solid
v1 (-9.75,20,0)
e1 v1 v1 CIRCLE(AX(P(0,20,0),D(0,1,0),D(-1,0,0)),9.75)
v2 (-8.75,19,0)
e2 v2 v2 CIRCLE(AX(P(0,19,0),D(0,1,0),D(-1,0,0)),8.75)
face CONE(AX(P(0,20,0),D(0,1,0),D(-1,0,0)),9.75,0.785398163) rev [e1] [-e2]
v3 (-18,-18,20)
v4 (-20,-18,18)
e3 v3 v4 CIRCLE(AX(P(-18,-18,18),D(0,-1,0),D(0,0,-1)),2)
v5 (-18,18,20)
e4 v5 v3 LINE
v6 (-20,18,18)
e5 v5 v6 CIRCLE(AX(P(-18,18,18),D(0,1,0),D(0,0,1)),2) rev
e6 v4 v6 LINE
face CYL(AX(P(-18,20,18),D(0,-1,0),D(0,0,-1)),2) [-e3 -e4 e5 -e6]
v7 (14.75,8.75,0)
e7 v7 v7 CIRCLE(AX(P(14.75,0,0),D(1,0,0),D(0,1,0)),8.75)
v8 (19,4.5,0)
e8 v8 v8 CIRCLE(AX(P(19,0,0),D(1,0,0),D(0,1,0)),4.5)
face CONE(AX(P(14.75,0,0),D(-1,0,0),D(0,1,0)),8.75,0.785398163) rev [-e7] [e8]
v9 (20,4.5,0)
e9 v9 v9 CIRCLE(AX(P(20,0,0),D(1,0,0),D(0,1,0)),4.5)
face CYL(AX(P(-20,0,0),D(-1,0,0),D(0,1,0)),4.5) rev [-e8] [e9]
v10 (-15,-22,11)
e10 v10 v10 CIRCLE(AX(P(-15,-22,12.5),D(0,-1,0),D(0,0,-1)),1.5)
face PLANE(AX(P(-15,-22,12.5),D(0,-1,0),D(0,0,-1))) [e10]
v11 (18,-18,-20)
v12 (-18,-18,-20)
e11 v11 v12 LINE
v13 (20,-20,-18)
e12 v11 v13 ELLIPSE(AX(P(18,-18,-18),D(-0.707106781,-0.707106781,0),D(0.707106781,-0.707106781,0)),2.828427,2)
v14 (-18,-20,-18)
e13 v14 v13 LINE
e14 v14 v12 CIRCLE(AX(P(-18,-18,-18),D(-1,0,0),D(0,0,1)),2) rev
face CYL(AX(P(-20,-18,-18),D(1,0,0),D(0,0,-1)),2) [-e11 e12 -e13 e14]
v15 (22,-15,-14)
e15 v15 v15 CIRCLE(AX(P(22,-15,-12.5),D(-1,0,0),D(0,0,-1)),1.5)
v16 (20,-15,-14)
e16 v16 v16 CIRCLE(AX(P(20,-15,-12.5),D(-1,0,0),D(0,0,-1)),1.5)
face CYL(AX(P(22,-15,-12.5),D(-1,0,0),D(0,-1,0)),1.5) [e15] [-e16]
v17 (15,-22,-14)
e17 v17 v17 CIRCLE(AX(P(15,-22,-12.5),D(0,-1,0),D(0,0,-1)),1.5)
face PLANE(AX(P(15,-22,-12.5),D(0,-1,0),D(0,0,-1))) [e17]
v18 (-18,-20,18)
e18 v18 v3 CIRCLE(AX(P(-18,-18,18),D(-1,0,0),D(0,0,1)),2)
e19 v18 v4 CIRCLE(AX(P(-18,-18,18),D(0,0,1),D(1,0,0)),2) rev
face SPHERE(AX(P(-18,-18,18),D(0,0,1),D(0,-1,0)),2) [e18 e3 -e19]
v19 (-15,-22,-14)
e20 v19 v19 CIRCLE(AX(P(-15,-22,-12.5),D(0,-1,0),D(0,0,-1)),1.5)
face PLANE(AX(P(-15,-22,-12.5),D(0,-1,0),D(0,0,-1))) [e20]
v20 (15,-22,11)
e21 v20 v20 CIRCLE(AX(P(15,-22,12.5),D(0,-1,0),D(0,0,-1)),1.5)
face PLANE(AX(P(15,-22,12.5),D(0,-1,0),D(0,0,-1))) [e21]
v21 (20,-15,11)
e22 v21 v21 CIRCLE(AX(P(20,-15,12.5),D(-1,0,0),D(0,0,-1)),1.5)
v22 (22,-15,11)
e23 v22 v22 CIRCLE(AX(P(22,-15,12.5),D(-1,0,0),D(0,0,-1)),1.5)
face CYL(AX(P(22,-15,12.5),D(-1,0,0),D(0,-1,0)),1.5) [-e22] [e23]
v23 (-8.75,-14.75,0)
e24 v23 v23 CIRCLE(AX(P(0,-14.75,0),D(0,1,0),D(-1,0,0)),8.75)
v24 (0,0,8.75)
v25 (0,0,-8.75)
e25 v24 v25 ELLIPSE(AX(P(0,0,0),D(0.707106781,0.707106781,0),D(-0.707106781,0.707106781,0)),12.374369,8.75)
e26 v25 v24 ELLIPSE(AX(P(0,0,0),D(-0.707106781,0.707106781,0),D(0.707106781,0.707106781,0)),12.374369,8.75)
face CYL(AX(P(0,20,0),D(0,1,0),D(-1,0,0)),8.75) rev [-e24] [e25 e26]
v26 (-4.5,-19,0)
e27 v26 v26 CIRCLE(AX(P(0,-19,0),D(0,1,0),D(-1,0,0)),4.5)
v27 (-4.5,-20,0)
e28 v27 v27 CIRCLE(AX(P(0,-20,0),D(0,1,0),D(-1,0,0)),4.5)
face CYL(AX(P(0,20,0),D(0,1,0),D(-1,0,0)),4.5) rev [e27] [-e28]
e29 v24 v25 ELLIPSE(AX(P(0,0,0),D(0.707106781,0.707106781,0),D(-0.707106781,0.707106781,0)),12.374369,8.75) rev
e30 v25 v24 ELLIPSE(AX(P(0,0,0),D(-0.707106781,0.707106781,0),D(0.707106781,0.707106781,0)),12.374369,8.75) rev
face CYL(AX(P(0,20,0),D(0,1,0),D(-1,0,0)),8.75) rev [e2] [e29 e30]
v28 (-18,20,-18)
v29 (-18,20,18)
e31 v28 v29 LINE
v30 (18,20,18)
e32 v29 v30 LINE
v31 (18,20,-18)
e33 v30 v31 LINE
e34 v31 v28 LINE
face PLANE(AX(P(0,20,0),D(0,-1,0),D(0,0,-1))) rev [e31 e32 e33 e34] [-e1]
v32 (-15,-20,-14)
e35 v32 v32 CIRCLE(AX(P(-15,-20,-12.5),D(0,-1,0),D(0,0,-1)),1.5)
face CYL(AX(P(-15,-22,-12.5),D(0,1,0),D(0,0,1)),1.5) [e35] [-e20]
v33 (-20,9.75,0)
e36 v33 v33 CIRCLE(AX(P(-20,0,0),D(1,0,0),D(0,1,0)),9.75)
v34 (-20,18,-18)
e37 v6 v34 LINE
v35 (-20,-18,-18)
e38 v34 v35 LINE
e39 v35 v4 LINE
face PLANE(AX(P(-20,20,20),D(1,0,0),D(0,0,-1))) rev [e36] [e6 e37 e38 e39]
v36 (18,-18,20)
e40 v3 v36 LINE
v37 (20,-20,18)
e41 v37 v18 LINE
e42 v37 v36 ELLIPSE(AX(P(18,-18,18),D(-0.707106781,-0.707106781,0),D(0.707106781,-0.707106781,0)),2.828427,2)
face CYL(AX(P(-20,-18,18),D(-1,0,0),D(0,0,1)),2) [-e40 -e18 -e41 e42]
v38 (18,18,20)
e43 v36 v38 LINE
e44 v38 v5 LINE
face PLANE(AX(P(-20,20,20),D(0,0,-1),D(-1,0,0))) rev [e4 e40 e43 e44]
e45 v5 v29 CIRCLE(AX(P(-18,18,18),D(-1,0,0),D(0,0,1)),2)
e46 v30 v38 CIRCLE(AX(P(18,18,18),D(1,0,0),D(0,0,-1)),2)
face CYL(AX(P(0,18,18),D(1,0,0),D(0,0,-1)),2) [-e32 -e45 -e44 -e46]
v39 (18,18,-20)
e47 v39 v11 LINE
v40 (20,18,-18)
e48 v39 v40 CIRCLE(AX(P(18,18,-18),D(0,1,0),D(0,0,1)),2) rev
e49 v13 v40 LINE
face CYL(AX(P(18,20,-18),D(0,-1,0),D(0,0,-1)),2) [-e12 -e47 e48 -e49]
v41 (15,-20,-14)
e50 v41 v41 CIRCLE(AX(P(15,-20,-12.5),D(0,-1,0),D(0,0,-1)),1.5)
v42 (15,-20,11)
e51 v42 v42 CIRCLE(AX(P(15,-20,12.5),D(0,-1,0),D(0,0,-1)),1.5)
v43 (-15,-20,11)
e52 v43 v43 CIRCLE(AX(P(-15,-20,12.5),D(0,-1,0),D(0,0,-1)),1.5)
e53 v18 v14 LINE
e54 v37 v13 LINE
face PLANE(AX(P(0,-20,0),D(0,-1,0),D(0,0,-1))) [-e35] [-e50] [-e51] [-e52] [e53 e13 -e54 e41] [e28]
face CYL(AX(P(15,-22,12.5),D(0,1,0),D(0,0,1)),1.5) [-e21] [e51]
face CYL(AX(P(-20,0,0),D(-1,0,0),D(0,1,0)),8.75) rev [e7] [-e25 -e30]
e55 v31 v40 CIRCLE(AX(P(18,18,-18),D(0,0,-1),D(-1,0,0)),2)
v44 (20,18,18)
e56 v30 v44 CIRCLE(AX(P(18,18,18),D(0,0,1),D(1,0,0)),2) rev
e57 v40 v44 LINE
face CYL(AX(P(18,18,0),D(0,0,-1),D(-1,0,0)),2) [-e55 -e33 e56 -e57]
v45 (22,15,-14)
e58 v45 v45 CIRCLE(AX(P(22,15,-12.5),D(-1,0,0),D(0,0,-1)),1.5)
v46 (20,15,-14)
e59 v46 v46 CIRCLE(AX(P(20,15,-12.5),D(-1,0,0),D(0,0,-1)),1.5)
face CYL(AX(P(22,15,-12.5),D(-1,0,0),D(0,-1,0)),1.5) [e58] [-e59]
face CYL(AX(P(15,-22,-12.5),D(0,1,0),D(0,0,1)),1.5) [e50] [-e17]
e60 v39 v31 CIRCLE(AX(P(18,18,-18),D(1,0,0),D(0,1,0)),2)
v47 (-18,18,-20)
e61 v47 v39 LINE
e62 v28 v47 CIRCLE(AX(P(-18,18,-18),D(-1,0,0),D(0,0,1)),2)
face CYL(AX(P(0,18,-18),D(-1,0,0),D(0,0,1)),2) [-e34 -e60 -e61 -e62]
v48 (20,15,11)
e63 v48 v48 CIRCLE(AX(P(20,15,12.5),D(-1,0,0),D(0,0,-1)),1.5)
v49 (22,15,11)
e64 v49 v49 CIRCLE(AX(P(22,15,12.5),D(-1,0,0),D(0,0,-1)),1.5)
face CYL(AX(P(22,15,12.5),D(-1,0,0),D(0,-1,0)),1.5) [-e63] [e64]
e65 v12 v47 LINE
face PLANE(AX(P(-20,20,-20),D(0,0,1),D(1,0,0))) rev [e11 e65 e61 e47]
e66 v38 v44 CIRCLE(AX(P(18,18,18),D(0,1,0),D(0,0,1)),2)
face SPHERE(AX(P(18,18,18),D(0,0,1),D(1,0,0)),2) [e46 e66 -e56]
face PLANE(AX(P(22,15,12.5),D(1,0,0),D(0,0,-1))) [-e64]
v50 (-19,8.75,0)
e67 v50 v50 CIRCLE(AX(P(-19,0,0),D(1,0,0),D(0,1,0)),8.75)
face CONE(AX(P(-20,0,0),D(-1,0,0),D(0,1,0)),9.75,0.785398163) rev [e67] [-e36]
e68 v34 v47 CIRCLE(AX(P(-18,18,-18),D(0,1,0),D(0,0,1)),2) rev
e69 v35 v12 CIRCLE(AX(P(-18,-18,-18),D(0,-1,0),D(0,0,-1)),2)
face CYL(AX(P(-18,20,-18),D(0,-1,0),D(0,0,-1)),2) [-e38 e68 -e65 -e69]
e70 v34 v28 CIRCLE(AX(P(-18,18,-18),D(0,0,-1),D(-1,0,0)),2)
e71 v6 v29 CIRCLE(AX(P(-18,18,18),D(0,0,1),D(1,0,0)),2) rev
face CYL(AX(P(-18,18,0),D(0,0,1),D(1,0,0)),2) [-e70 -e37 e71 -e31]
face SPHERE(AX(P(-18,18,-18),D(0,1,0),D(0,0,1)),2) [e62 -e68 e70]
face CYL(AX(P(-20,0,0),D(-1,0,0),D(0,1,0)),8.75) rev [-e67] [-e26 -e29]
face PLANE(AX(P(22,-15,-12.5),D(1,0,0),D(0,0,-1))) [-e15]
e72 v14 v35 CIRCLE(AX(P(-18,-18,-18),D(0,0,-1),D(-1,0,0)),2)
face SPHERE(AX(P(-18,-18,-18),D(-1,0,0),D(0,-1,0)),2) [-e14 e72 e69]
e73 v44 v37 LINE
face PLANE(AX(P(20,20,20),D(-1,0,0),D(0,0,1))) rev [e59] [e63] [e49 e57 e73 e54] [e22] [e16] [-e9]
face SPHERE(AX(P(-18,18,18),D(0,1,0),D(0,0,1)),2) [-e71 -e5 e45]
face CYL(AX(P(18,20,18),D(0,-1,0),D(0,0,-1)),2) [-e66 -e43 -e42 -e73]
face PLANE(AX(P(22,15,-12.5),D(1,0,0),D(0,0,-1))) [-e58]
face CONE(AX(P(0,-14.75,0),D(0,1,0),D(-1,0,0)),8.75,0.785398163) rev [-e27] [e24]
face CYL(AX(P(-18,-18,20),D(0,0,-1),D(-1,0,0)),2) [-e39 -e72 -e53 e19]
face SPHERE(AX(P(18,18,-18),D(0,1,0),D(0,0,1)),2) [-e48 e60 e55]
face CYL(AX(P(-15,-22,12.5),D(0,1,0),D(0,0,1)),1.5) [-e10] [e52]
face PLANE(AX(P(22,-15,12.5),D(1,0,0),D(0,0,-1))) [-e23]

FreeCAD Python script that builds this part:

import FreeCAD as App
import Part
import Sketcher
from FreeCAD import Vector
Q = App.Units.Quantity


def edges_at(feature, points):
    """Names of the edges that pass closest to the given points."""
    edges = feature.Shape.Edges
    near = lambda p: min(range(len(edges)), key=lambda i: edges[i].distToShape(Part.Vertex(*p))[0])
    return sorted({f"Edge{near(p) + 1}" for p in points})


def add_polygon(sketch, points):
    """Adds a closed chain of lines whose ends are joined by coincident constraints."""
    first, n = sketch.GeometryCount, len(points)
    for a, b in zip(points, points[1:] + points[:1]):
        sketch.addGeometry(Part.LineSegment(App.Vector(*a, 0), App.Vector(*b, 0)), False)
    for i in range(n):
        sketch.addConstraint(Sketcher.Constraint("Coincident", first + i, 2, first + (i + 1) % n, 1))

doc = App.newDocument("Part")
params = doc.addObject("Spreadsheet::Sheet", "Params")
for row, (alias, value) in enumerate([
    ("sketch1_width", "40 mm"),
    ("pad1_length", "40 mm"),
    ("sketch2_height", "1 mm"),
    ("sketch2_height2", "40 mm"),
    ("sketch2_width", "4.5 mm"),
    ("sketch2_width2", "9.75 mm"),
    ("groove_angle", "360 deg"),
    ("sketch3_diameter", "3 mm"),
    ("pad2_length", "2 mm"),
    ("fillet_radius", "2 mm"),
], start=1):
    params.set(f"A{row}", alias)
    params.set(f"B{row}", "=" + value)
    params.setAlias(f"B{row}", alias)

body = doc.addObject("PartDesign::Body", "Body")

# Sketch on XZ plane
sketch1 = body.newObject("Sketcher::SketchObject", "Sketch")
sketch1.AttachmentSupport = (doc.getObject("XZ_Plane"), [""])
sketch1.MapMode = "FlatFace"
add_polygon(sketch1, [(-20, -20), (-20, 20), (20, 20), (20, -20)])  # lines 0-3
sketch1.addConstraint([
    Sketcher.Constraint("Vertical", 0),
    Sketcher.Constraint("Horizontal", 1),
    Sketcher.Constraint("Vertical", 2),
    Sketcher.Constraint("Horizontal", 3),
    Sketcher.Constraint("Symmetric", 0, 2, 2, 2, -1, 1),
    Sketcher.Constraint("Equal", 3, 0),
    Sketcher.Constraint("DistanceX", 1, 1, 1, 2, Q("40 mm")),
])
sketch1.setExpression("Constraints[10]", "Params.sketch1_width")
pad1 = body.newObject("PartDesign::Pad", "Pad")
pad1.Profile = sketch1
pad1.setExpression("Length", "Params.pad1_length")
pad1.Midplane = True

# Sketch on XY plane
sketch2 = body.newObject("Sketcher::SketchObject", "Sketch001")
sketch2.AttachmentSupport = (doc.getObject("XY_Plane"), [""])
sketch2.MapMode = "FlatFace"
add_polygon(sketch2, [(-4.5, -19), (-4.5, -20), (0, -20), (0, 20), (-9.75, 20), (-8.75, 19), (-8.75, -14.75)])  # lines 0-6
sketch2.addConstraint([
    Sketcher.Constraint("Vertical", 0),
    Sketcher.Constraint("Horizontal", 1),
    Sketcher.Constraint("Vertical", 2),
    Sketcher.Constraint("Horizontal", 3),
    Sketcher.Constraint("Vertical", 5),
    Sketcher.Constraint("Symmetric", 1, 2, 2, 2, -1, 1),
    Sketcher.Constraint("Parallel", 4, 6),
    Sketcher.Constraint("DistanceY", 0, 2, 0, 1, Q("1 mm")),
    Sketcher.Constraint("DistanceY", 2, 1, 2, 2, Q("40 mm")),
    Sketcher.Constraint("Angle", 4, Q("-45 deg")),
    Sketcher.Constraint("DistanceX", 1, 1, 1, 2, Q("4.5 mm")),
    Sketcher.Constraint("DistanceY", -1, 1, 4, 2, Q("19 mm")),
    Sketcher.Constraint("DistanceX", 3, 2, 3, 1, Q("9.75 mm")),
])
sketch2.setExpression("Constraints[14]", "Params.sketch2_height")
sketch2.setExpression("Constraints[15]", "Params.sketch2_height2")
sketch2.setExpression("Constraints[17]", "Params.sketch2_width")
sketch2.setExpression("Constraints[19]", "Params.sketch2_width2")
groove = body.newObject("PartDesign::Groove", "Groove")
groove.Profile = sketch2
groove.ReferenceAxis = (sketch2, ["V_Axis"])
groove.setExpression("Angle", "Params.groove_angle")

# Sketch on XZ plane
sketch3 = body.newObject("Sketcher::SketchObject", "Sketch002")
sketch3.AttachmentSupport = (doc.getObject("XZ_Plane"), [""])
sketch3.MapMode = "FlatFace"
sketch3.AttachmentOffset = App.Placement(Vector(0, 0, 20), App.Rotation())
sketch3.addGeometry([
    Part.Circle(Vector(-15, 12.5, 0), Vector(0, 0, 1), 1.5),
    Part.Circle(Vector(-15, -12.5, 0), Vector(0, 0, 1), 1.5),
    Part.Circle(Vector(15, -12.5, 0), Vector(0, 0, 1), 1.5),
    Part.Circle(Vector(15, 12.5, 0), Vector(0, 0, 1), 1.5),
], False)
sketch3.addConstraint([
    Sketcher.Constraint("Equal", 0, 1),
    Sketcher.Constraint("Equal", 1, 2),
    Sketcher.Constraint("Equal", 2, 3),
    Sketcher.Constraint("Symmetric", 0, 3, 2, 3, -1, 1),
    Sketcher.Constraint("Symmetric", 1, 3, 3, 3, -1, 1),
    Sketcher.Constraint("Symmetric", 1, 3, 2, 3, -2),
    Sketcher.Constraint("Diameter", 0, Q("3 mm")),
    Sketcher.Constraint("DistanceX", 0, 3, -1, 1, Q("15 mm")),
    Sketcher.Constraint("DistanceY", 1, 3, 0, 3, Q("25 mm")),
])
sketch3.setExpression("Constraints[6]", "Params.sketch3_diameter")
pad2 = body.newObject("PartDesign::Pad", "Pad001")
pad2.Profile = sketch3
pad2.setExpression("Length", "Params.pad2_length")
doc.recompute()

datumplane = body.newObject("PartDesign::Plane", "DatumPlane")
datumplane.Placement = App.Placement(Vector(0, 0, 0), App.Rotation(Vector(0.707106781, -0.707106781, 0), Vector(0, 0, -1), Vector(0.707106781, 0.707106781, 0), "ZXY"))
mirrored = body.newObject("PartDesign::Mirrored", "Mirrored")
mirrored.Originals = [groove, pad2]
mirrored.MirrorPlane = (datumplane, [""])
body.Tip = mirrored
doc.recompute()

fillet = body.newObject("PartDesign::Fillet", "Fillet")
fillet.Base = (mirrored, edges_at(mirrored, [
    (-20, 20, 0),
    (0, 20, 20),
    (20, 20, 0),
    (0, -20, 20),
    (-20, -20, 0),
    (0, -20, -20),
    (20, 0, 20),
    (-20, 0, 20),
    (-20, 0, -20),
    (20, 0, -20),
    (0, 20, -20),
]))
fillet.setExpression("Radius", "Params.fillet_radius")

doc.recompute()
